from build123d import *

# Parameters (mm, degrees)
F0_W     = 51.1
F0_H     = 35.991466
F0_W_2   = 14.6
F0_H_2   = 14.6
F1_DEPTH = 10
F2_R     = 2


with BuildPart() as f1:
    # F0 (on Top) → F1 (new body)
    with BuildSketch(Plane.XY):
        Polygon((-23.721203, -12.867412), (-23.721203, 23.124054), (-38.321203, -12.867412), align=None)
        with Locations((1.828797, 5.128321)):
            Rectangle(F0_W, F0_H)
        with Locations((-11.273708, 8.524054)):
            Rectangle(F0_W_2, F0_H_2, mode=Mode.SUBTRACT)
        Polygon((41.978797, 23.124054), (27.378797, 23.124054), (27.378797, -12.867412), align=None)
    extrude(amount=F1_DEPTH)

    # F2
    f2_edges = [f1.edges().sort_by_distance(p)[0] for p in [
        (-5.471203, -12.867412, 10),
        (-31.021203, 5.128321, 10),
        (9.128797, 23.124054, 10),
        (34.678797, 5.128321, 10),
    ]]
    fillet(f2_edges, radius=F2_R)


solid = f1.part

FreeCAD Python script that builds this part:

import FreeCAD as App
import Part
import Sketcher
Q = App.Units.Quantity


def edges_at(feature, points):
    """Names of the edges that pass closest to the given points."""
    edges = feature.Shape.Edges
    near = lambda p: min(range(len(edges)), key=lambda i: edges[i].distToShape(Part.Vertex(*p))[0])
    return sorted({f"Edge{near(p) + 1}" for p in points})

doc = App.newDocument("Part")
body = doc.addObject("PartDesign::Body", "Body")

sketch1 = doc.addObject("Sketcher::SketchObject", "Sketch")
body.addObject(sketch1)
sketch1.AttachmentSupport = (doc.XY_Plane, [""])
sketch1.MapMode = "FlatFace"
sketch1.addGeometry([
    Part.LineSegment(App.Vector(-24, 23, 0), App.Vector(-38, -13, 0)),
    Part.LineSegment(App.Vector(-38, -13, 0), App.Vector(27, -13, 0)),
    Part.LineSegment(App.Vector(27, -13, 0), App.Vector(42, 23, 0)),
    Part.LineSegment(App.Vector(42, 23, 0), App.Vector(-24, 23, 0)),
    Part.LineSegment(App.Vector(-4, 1, 0), App.Vector(-19, 1, 0)),
    Part.LineSegment(App.Vector(-19, 1, 0), App.Vector(-19, 16, 0)),
    Part.LineSegment(App.Vector(-19, 16, 0), App.Vector(-4, 16, 0)),
    Part.LineSegment(App.Vector(-4, 16, 0), App.Vector(-4, 1, 0)),
], False)
sketch1.addConstraint([
    Sketcher.Constraint("Coincident", 0, 2, 1, 1),
    Sketcher.Constraint("Coincident", 1, 2, 2, 1),
    Sketcher.Constraint("Coincident", 2, 2, 3, 1),
    Sketcher.Constraint("Coincident", 3, 2, 0, 1),
    Sketcher.Constraint("Coincident", 4, 2, 5, 1),
    Sketcher.Constraint("Coincident", 5, 2, 6, 1),
    Sketcher.Constraint("Coincident", 6, 2, 7, 1),
    Sketcher.Constraint("Coincident", 7, 2, 4, 1),
    Sketcher.Constraint("Horizontal", 1),
    Sketcher.Constraint("Horizontal", 3),
    Sketcher.Constraint("Horizontal", 4),
    Sketcher.Constraint("Vertical", 5),
    Sketcher.Constraint("Horizontal", 6),
    Sketcher.Constraint("Vertical", 7),
    Sketcher.Constraint("Parallel", 0, 2),
    Sketcher.Constraint("Equal", 6, 5),
    Sketcher.Constraint("DistanceX", 1, 1, 1, 2, 65.7),
    Sketcher.Constraint("DistanceX", 4, 2, 4, 1, 14.6),
    Sketcher.Constraint("Angle", 0, Q("-112.080019 deg")),
    Sketcher.Constraint("DistanceX", 1, 2, 2, 2, 14.6),
    Sketcher.Constraint("DistanceY", 4, 2, 3, 2, 21.9),
    Sketcher.Constraint("DistanceX", 4, 2, -1, 1, 18.573708),
    Sketcher.Constraint("DistanceX", 0, 2, -1, 1, 38.321203),
    Sketcher.Constraint("DistanceY", 0, 2, -1, 1, 12.867412),
])
pad1 = doc.addObject("PartDesign::Pad", "Pad")
body.addObject(pad1)
pad1.Profile = sketch1
pad1.Length = 10
doc.recompute()

fillet = doc.addObject("PartDesign::Fillet", "Fillet")
body.addObject(fillet)
fillet.Base = (pad1, edges_at(pad1, [
    (-5.471, -12.867, 10),
    (-31.021, 5.128, 10),
    (9.129, 23.124, 10),
    (34.679, 5.128, 10),
]))
fillet.Radius = 2

doc.recompute()
